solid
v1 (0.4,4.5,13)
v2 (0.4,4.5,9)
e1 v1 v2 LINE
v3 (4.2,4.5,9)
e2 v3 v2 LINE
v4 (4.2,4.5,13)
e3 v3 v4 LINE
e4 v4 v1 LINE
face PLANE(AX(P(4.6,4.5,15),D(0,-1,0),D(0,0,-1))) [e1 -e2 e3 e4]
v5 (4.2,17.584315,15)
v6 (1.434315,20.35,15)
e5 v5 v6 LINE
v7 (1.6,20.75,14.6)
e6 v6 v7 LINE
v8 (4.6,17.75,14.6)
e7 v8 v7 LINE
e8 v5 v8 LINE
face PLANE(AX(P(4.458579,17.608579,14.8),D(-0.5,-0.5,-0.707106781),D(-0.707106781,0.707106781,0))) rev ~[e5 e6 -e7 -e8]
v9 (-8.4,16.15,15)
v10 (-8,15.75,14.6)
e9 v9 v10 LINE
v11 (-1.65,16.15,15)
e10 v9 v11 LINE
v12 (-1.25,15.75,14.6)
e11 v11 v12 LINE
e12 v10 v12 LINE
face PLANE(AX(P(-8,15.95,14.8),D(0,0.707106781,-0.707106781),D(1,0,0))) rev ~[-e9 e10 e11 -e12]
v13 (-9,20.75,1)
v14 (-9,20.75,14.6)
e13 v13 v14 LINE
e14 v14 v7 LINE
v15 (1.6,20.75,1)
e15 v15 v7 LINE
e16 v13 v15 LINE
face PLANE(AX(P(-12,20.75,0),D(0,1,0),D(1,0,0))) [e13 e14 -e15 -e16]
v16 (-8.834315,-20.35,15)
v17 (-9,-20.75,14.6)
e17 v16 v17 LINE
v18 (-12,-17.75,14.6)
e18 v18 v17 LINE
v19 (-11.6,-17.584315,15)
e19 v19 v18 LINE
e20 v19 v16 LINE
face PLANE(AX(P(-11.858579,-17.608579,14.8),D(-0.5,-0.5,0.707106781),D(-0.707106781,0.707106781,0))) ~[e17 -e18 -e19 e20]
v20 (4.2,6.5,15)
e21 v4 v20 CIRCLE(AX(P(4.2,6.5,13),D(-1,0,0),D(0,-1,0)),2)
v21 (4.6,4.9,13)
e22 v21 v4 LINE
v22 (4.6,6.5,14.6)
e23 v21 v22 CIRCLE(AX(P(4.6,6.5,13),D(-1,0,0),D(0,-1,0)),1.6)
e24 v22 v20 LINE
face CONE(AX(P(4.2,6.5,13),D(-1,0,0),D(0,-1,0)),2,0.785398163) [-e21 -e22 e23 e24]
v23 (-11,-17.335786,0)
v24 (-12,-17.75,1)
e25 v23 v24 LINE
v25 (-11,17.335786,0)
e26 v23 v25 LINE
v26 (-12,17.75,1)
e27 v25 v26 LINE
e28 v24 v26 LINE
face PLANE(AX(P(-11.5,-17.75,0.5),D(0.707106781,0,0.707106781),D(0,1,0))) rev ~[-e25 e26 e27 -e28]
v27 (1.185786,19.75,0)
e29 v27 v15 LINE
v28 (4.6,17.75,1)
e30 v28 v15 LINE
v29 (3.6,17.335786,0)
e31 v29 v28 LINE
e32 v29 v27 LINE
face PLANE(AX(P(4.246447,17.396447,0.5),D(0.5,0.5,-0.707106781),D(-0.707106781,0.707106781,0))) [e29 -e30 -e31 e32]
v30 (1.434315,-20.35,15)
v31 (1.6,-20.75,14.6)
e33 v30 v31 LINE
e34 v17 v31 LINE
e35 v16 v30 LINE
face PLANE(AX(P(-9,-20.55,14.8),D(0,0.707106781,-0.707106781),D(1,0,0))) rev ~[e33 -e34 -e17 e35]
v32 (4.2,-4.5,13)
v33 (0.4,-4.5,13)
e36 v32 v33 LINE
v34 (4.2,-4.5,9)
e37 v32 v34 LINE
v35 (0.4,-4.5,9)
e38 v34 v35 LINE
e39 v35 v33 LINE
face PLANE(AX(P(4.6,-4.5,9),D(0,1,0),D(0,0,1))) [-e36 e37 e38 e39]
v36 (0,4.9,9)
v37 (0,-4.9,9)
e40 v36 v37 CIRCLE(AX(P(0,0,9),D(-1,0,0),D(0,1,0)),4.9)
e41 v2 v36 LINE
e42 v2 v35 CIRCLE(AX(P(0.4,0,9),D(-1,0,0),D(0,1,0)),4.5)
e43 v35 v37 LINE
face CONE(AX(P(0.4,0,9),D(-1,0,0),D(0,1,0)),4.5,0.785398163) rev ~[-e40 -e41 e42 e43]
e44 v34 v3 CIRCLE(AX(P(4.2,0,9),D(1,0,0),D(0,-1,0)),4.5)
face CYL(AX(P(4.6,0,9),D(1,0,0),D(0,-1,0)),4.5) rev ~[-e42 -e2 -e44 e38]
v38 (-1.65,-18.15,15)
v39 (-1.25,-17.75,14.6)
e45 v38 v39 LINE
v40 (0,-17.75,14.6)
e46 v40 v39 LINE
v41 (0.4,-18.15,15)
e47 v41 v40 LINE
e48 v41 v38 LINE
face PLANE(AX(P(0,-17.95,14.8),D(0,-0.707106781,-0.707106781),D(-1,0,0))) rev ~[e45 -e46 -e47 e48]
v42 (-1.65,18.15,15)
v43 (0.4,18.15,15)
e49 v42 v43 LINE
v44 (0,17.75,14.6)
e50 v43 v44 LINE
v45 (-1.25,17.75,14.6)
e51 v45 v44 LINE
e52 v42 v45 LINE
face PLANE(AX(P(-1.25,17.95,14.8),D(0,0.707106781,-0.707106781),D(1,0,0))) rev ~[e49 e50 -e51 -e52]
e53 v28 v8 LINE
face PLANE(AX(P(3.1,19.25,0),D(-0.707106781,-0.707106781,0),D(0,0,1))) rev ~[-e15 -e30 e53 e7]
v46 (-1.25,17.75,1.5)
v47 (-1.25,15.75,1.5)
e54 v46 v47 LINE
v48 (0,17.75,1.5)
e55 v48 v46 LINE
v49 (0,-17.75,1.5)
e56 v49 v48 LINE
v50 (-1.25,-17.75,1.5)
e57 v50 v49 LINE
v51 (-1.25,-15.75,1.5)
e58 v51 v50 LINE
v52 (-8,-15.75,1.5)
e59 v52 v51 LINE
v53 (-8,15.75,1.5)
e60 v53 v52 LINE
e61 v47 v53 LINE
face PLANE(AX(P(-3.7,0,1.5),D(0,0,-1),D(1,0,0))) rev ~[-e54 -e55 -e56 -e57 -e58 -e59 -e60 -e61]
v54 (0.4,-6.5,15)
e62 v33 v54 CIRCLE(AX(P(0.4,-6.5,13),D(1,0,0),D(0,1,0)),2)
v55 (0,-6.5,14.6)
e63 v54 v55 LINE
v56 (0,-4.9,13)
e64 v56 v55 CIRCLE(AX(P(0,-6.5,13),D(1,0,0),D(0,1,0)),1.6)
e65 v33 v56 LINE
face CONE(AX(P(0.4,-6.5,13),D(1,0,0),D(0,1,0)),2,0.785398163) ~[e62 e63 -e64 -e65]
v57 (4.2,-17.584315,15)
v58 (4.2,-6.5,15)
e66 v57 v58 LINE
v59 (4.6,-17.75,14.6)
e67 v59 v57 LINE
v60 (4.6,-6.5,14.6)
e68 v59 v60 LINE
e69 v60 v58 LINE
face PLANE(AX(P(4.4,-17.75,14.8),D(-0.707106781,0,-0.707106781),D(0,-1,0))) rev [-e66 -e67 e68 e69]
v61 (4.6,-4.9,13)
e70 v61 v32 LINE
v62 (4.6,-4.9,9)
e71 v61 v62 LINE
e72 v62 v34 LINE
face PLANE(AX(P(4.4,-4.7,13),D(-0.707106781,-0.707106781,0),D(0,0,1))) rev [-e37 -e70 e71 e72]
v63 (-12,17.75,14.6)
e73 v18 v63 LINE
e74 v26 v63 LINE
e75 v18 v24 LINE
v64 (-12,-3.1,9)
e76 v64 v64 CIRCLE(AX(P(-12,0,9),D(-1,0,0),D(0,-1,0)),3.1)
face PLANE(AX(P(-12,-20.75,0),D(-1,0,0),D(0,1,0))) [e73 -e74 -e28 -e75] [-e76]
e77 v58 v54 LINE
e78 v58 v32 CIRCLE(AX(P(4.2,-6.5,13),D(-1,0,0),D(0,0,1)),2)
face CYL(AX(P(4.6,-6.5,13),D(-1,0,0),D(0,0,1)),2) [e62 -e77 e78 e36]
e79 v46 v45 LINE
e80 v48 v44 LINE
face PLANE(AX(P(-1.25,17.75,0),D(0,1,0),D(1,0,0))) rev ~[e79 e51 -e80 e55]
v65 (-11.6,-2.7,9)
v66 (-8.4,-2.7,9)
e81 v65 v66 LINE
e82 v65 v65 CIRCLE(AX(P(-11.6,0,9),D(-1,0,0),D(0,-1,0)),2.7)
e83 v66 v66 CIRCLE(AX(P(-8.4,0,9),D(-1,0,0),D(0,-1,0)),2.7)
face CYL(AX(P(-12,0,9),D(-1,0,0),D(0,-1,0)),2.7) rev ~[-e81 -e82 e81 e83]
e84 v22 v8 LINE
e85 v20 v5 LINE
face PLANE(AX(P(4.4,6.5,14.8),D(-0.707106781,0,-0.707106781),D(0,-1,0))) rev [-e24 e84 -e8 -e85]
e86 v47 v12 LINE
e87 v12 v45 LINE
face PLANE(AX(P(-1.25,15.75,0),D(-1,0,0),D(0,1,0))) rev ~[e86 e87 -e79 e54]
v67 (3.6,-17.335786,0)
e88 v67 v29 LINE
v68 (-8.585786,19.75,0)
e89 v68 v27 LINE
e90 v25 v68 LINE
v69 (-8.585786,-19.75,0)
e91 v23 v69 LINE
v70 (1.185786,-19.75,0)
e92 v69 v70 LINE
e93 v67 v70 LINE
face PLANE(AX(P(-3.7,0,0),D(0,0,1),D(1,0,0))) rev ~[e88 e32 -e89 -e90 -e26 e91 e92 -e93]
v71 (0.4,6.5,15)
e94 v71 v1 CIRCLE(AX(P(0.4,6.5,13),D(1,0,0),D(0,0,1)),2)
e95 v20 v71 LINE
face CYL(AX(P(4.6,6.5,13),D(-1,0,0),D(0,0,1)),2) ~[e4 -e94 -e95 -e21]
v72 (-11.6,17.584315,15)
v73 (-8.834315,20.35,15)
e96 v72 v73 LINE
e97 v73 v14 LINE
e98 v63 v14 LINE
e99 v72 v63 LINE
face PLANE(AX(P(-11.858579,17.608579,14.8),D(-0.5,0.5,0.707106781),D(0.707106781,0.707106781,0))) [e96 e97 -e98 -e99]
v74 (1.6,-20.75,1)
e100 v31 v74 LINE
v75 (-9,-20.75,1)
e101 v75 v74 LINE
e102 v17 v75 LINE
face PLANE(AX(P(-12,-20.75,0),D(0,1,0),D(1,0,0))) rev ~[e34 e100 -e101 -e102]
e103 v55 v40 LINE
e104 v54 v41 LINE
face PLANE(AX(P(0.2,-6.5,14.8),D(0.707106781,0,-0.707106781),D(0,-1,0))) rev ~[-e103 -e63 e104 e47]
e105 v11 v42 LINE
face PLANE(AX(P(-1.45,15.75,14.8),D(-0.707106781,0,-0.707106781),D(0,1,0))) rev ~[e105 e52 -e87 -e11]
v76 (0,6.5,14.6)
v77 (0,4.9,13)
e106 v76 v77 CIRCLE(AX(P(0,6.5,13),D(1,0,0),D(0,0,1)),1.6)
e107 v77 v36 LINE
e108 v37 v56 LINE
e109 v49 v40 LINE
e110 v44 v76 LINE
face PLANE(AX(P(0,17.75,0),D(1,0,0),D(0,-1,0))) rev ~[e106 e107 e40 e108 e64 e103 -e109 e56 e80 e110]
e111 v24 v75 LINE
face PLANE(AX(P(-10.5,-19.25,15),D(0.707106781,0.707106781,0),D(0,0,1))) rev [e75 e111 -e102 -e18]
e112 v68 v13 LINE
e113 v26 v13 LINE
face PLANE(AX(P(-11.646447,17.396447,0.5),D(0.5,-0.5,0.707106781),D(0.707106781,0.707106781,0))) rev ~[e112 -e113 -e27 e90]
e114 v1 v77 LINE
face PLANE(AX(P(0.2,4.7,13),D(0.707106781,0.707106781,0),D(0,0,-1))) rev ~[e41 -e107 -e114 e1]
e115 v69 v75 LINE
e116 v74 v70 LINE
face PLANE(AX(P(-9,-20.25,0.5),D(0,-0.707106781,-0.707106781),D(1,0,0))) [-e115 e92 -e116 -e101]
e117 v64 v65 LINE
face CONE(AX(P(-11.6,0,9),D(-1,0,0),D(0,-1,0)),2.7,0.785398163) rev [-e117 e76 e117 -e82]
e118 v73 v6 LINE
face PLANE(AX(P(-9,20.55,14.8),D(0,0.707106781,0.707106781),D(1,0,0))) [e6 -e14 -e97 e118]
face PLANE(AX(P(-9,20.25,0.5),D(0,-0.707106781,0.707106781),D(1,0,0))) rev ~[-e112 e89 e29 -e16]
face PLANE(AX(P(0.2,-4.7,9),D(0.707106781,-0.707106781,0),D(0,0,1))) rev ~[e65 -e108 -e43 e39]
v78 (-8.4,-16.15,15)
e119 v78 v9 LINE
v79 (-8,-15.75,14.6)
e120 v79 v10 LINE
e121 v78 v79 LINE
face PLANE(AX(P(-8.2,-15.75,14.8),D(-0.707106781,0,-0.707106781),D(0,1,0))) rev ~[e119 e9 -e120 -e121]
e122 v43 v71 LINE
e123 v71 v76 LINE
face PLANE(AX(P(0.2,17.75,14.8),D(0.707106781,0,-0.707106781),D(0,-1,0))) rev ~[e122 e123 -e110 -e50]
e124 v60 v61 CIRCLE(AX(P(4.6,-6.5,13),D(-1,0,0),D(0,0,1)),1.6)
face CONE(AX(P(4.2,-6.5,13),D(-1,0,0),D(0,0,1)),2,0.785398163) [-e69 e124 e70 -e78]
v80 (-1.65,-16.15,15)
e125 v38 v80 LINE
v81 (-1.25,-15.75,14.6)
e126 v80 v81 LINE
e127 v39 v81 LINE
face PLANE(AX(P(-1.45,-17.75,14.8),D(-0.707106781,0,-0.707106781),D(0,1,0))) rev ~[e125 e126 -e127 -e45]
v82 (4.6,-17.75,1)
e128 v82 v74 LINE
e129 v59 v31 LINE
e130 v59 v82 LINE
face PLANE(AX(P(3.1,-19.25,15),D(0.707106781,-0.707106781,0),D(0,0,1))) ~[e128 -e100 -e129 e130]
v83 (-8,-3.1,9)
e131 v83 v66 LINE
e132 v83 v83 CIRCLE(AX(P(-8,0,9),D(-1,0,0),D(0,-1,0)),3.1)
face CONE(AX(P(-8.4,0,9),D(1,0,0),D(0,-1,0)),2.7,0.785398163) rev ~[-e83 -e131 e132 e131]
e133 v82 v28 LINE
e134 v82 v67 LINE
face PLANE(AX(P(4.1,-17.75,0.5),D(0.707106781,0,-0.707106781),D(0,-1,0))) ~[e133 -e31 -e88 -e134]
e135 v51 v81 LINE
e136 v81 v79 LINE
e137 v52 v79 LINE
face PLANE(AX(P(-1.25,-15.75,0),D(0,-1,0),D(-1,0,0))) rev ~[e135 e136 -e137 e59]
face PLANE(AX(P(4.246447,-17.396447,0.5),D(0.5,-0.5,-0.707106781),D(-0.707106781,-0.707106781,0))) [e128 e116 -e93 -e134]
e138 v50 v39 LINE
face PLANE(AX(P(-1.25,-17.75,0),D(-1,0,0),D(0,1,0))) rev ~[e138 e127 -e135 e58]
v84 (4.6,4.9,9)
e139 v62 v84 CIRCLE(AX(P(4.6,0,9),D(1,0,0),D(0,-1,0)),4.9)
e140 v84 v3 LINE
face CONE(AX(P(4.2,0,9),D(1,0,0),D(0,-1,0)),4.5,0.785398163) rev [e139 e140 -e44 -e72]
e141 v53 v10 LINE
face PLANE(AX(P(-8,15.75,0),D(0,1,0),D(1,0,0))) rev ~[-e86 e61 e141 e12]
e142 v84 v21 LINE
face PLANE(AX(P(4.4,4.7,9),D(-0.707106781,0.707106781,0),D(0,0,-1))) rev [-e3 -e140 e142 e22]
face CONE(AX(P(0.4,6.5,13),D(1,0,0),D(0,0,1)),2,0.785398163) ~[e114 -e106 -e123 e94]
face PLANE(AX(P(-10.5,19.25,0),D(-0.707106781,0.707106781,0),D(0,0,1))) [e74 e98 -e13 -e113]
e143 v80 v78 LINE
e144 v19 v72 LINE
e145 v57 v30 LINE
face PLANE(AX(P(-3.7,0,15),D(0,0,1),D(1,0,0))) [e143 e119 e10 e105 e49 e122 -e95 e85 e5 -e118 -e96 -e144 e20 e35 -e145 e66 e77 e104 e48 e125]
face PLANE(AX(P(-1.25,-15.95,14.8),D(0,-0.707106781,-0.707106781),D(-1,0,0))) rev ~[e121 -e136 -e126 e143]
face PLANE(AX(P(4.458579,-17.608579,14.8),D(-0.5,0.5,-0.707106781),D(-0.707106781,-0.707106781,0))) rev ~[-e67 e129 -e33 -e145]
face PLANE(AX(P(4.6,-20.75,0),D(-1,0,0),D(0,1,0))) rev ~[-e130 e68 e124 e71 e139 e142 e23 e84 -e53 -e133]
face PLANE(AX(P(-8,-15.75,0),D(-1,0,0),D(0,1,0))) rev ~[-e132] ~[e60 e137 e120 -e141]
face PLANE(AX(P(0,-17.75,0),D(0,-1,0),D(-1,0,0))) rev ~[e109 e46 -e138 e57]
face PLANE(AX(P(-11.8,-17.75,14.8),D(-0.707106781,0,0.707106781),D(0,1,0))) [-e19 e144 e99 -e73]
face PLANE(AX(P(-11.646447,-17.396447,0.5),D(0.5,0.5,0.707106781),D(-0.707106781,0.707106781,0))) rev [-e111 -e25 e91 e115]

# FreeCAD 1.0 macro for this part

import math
import FreeCAD as App
import Part
import Sketcher
from FreeCAD import Vector


def edges_at(feature, points):
    """Names of the edges that pass closest to the given points."""
    edges = feature.Shape.Edges
    near = lambda p: min(range(len(edges)), key=lambda i: edges[i].distToShape(Part.Vertex(*p))[0])
    return sorted({f"Edge{near(p) + 1}" for p in points})


def add_polygon(sketch, points):
    """Adds a closed chain of lines whose ends are joined by coincident constraints."""
    first, n = sketch.GeometryCount, len(points)
    for a, b in zip(points, points[1:] + points[:1]):
        sketch.addGeometry(Part.LineSegment(App.Vector(*a, 0), App.Vector(*b, 0)), False)
    for i in range(n):
        sketch.addConstraint(Sketcher.Constraint("Coincident", first + i, 2, first + (i + 1) % n, 1))

doc = App.newDocument("Part")
body = doc.addObject("PartDesign::Body", "Body")

# Sketch on XY plane
sketch1 = doc.addObject("Sketcher::SketchObject", "Sketch")
body.addObject(sketch1)
sketch1.AttachmentSupport = (doc.XY_Plane, [""])
sketch1.MapMode = "FlatFace"
add_polygon(sketch1, [(-12, 20.8), (-12, -20.8), (4.6, -20.8), (4.6, 20.8)])  # lines 0-3
add_polygon(sketch1, [(-1.2, 17.8), (0, 17.8), (0, -17.8), (-1.2, -17.8), (-1.2, -15.8), (-8, -15.8), (-8, 15.8), (-1.2, 15.8)])  # lines 4-11
sketch1.addConstraint(Sketcher.Constraint("Vertical", 0))
sketch1.addConstraint(Sketcher.Constraint("Horizontal", 1))
sketch1.addConstraint(Sketcher.Constraint("Vertical", 2))
sketch1.addConstraint(Sketcher.Constraint("Horizontal", 3))
sketch1.addConstraint(Sketcher.Constraint("Horizontal", 4))
sketch1.addConstraint(Sketcher.Constraint("Vertical", 5))
sketch1.addConstraint(Sketcher.Constraint("Horizontal", 6))
sketch1.addConstraint(Sketcher.Constraint("Vertical", 7))
sketch1.addConstraint(Sketcher.Constraint("Horizontal", 8))
sketch1.addConstraint(Sketcher.Constraint("Vertical", 9))
sketch1.addConstraint(Sketcher.Constraint("Horizontal", 10))
sketch1.addConstraint(Sketcher.Constraint("Vertical", 11))
sketch1.addConstraint(Sketcher.Constraint("Symmetric", 4, 2, 5, 2, -1, 1))
sketch1.addConstraint(Sketcher.Constraint("Symmetric", 7, 2, 10, 2, -1))
sketch1.addConstraint(Sketcher.Constraint("DistanceY", 7, 1, 7, 2, 2.0))
sketch1.addConstraint(Sketcher.Constraint("DistanceX", 1, 1, 1, 2, 16.6))
sketch1.addConstraint(Sketcher.Constraint("DistanceY", 0, 2, 0, 1, 41.5))
sketch1.addConstraint(Sketcher.Constraint("DistanceY", 5, 2, 5, 1, 35.5))
sketch1.addConstraint(Sketcher.Constraint("DistanceX", 0, 2, -1, 1, 12.0))
sketch1.addConstraint(Sketcher.Constraint("DistanceX", 8, 2, -1, 1, 8.0))
sketch1.addConstraint(Sketcher.Constraint("DistanceY", 4, 2, 2, 2, 3.0))
sketch1.addConstraint(Sketcher.Constraint("DistanceX", 4, 1, 4, 2, 1.25))
pad1 = doc.addObject("PartDesign::Pad", "Pad")
body.addObject(pad1)
pad1.Profile = sketch1
pad1.Length = 15

# Sketch on YZ plane
sketch2 = doc.addObject("Sketcher::SketchObject", "Sketch001")
body.addObject(sketch2)
sketch2.AttachmentSupport = (doc.YZ_Plane, [""])
sketch2.MapMode = "FlatFace"
sketch2.AttachmentOffset = App.Placement(Vector(0, 0, -12), App.Rotation())
sketch2.addGeometry(Part.Circle(Vector(0, 9, 0), Vector(0, 0, 1), 2.7), False)
sketch2.addConstraint(Sketcher.Constraint("PointOnObject", 0, 3, -2))
sketch2.addConstraint(Sketcher.Constraint("Diameter", 0, 5.4))
sketch2.addConstraint(Sketcher.Constraint("DistanceY", -1, 1, 0, 3, 9.0))
pocket1 = doc.addObject("PartDesign::Pocket", "Pocket")
body.addObject(pocket1)
pocket1.Profile = sketch2
pocket1.Length = 4
pocket1.Reversed = True

# Sketch on YZ plane
sketch3 = doc.addObject("Sketcher::SketchObject", "Sketch002")
body.addObject(sketch3)
sketch3.AttachmentSupport = (doc.YZ_Plane, [""])
sketch3.MapMode = "FlatFace"
sketch3.AttachmentOffset = App.Placement(Vector(0, 0, 4.6), App.Rotation())
sketch3.addGeometry(Part.ArcOfCircle(Part.Circle(Vector(0, 9, 0), Vector(0, 0, 1), 4.5), math.radians(180), math.radians(360)), False)
sketch3.addGeometry(Part.LineSegment(Vector(4.5, 9, 0), Vector(4.5, 15, 0)), False)
sketch3.addGeometry(Part.LineSegment(Vector(4.5, 15, 0), Vector(-4.5, 15, 0)), False)
sketch3.addGeometry(Part.LineSegment(Vector(-4.5, 15, 0), Vector(-4.5, 9, 0)), False)
sketch3.addConstraint(Sketcher.Constraint("Tangent", 0, 2, 1, 1))
sketch3.addConstraint(Sketcher.Constraint("Coincident", 1, 2, 2, 1))
sketch3.addConstraint(Sketcher.Constraint("Coincident", 2, 2, 3, 1))
sketch3.addConstraint(Sketcher.Constraint("Tangent", 3, 2, 0, 1))
sketch3.addConstraint(Sketcher.Constraint("Vertical", 1))
sketch3.addConstraint(Sketcher.Constraint("Horizontal", 2))
sketch3.addConstraint(Sketcher.Constraint("Vertical", 3))
sketch3.addConstraint(Sketcher.Constraint("PointOnObject", 0, 3, -2))
sketch3.addConstraint(Sketcher.Constraint("Radius", 0, 4.5))
sketch3.addConstraint(Sketcher.Constraint("DistanceY", 1, 1, 1, 2, 6.0))
sketch3.addConstraint(Sketcher.Constraint("DistanceY", -1, 1, 0, 3, 9.0))
pocket2 = doc.addObject("PartDesign::Pocket", "Pocket001")
body.addObject(pocket2)
pocket2.Profile = sketch3
pocket2.Length = 4.6
doc.recompute()

fillet = doc.addObject("PartDesign::Fillet", "Fillet")
body.addObject(fillet)
fillet.Base = (pocket2, edges_at(pocket2, [(2.3, -4.5, 15), (2.3, 4.5, 15)]))
fillet.Radius = 2

# Sketch on XY plane
sketch4 = doc.addObject("Sketcher::SketchObject", "Sketch003")
body.addObject(sketch4)
sketch4.AttachmentSupport = (doc.XY_Plane, [""])
sketch4.MapMode = "FlatFace"
add_polygon(sketch4, [(-12, -21), (-12, 21), (5, 21), (5, -21)])  # lines 0-3
sketch4.addConstraint(Sketcher.Constraint("Vertical", 0))
sketch4.addConstraint(Sketcher.Constraint("Horizontal", 1))
sketch4.addConstraint(Sketcher.Constraint("Vertical", 2))
sketch4.addConstraint(Sketcher.Constraint("Horizontal", 3))
sketch4.addConstraint(Sketcher.Constraint("DistanceX", 1, 1, 1, 2, 16.6))
sketch4.addConstraint(Sketcher.Constraint("DistanceY", 0, 1, 0, 2, 41.5))
sketch4.addConstraint(Sketcher.Constraint("DistanceX", 0, 2, -1, 1, 12.0))
sketch4.addConstraint(Sketcher.Constraint("DistanceY", -1, 1, 0, 2, 20.75))
pad2 = doc.addObject("PartDesign::Pad", "Pad001")
body.addObject(pad2)
pad2.Profile = sketch4
pad2.Length = 1.5
doc.recompute()

chamfer = doc.addObject("PartDesign::Chamfer", "Chamfer")
body.addObject(chamfer)
chamfer.Base = (pad2, edges_at(pad2, [
    (-12, 20.75, 7.5),
    (-12, -20.75, 7.5),
    (4.6, -20.75, 7.5),
    (4.6, 20.75, 7.5),
]))
chamfer.Size = 3
doc.recompute()

chamfer2 = doc.addObject("PartDesign::Chamfer", "Chamfer001")
body.addObject(chamfer2)
chamfer2.Base = (chamfer, edges_at(chamfer, [
    (-3.7, 20.75, 0),
    (-10.5, 19.25, 0),
    (3.1, 19.25, 0),
    (-12, 0, 0),
    (4.6, 0, 0),
    (-10.5, -19.25, 0),
    (3.1, -19.25, 0),
    (-3.7, -20.75, 0),
]))
chamfer2.Size = 1
doc.recompute()

chamfer3 = doc.addObject("PartDesign::Chamfer", "Chamfer002")
body.addObject(chamfer3)
chamfer3.Base = (chamfer2, edges_at(chamfer2, [
    (-4.625, 15.75, 15),
    (-8, 0, 15),
    (-1.25, 16.75, 15),
    (-0.625, 17.75, 15),
    (0, 12.125, 15),
    (0, 5.086, 14.414),
    (0, 4.5, 11),
    (0, 0, 4.5),
    (0, -4.5, 11),
    (0, -5.086, 14.414),
    (0, -12.125, 15),
    (-0.625, -17.75, 15),
    (-1.25, -16.75, 15),
    (-4.625, -15.75, 15),
    (-12, 0, 15),
    (-10.5, 19.25, 15),
    (-3.7, 20.75, 15),
    (3.1, 19.25, 15),
    (4.6, 12.125, 15),
    (-10.5, -19.25, 15),
    (-3.7, -20.75, 15),
    (3.1, -19.25, 15),
    (4.6, -12.125, 15),
    (-12, 2.7, 9),
    (4.6, 5.086, 14.414),
    (4.6, 4.5, 11),
    (4.6, 0, 4.5),
    (4.6, -4.5, 11),
    (4.6, -5.086, 14.414),
    (-8, 2.7, 9),
]))
chamfer3.Size = 0.4

doc.recompute()
